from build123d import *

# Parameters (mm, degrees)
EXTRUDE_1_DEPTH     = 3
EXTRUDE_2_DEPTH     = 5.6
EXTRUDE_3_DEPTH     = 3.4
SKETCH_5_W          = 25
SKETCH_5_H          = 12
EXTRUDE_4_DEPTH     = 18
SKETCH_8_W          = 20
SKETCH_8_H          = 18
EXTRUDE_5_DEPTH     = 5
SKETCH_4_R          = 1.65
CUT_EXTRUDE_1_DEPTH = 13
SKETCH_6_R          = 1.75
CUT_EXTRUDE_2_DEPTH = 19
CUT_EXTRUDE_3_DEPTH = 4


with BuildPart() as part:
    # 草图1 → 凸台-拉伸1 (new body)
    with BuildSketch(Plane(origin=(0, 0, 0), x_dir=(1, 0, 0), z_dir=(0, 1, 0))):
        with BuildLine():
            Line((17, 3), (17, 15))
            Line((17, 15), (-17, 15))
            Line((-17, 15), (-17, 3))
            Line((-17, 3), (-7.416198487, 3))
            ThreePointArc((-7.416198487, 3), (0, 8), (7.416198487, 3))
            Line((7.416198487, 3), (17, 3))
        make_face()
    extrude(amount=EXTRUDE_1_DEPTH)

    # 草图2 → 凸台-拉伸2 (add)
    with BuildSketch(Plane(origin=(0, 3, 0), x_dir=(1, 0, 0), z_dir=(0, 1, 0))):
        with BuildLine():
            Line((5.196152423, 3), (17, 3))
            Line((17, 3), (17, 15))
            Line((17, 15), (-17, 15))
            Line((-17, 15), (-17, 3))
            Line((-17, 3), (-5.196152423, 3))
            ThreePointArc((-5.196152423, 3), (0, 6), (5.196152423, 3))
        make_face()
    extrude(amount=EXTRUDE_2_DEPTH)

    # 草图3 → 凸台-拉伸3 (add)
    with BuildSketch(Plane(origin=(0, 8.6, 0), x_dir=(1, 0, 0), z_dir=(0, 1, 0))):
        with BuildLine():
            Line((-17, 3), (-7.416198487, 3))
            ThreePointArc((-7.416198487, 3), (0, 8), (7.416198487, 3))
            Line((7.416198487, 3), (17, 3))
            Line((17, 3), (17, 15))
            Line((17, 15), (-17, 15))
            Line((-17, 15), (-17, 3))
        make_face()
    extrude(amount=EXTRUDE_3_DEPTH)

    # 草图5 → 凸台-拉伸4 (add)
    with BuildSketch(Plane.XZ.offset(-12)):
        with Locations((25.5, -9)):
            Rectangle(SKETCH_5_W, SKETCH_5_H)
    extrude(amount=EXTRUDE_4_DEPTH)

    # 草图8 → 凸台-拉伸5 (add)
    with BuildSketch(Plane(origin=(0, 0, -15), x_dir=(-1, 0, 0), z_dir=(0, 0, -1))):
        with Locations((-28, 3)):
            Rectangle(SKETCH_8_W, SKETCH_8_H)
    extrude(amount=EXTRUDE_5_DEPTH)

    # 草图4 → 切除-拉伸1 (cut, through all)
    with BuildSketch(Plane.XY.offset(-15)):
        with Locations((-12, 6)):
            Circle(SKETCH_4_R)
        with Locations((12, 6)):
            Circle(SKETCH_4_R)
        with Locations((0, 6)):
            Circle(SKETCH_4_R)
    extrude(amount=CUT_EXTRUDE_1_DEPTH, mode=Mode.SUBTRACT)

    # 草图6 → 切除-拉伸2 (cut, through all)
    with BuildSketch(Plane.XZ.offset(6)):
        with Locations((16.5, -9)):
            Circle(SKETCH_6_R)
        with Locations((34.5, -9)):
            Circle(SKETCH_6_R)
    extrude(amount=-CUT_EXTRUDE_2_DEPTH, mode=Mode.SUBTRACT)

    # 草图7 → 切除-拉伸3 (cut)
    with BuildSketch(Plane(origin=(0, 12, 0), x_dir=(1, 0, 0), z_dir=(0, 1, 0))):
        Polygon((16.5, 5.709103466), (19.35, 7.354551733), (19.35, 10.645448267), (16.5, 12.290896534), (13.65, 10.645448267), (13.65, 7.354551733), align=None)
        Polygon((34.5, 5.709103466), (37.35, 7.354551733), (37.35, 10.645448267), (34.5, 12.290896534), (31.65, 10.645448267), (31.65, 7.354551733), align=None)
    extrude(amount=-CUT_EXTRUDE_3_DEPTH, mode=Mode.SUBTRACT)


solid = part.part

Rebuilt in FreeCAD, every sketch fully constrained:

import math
import FreeCAD as App
import Part
import Sketcher
Q = App.Units.Quantity

doc = App.newDocument("Part")
body = doc.addObject("PartDesign::Body", "Body")

# Sketch on XZ plane
sketch1 = body.newObject("Sketcher::SketchObject", "Sketch")
sketch1.AttachmentSupport = (doc.getObject("XZ_Plane"), [""])
sketch1.MapMode = "FlatFace"
sketch1.addGeometry([
    Part.LineSegment(App.Vector(17, -3, 0), App.Vector(17, -15, 0)),  # 0
    Part.LineSegment(App.Vector(17, -15, 0), App.Vector(-17, -15, 0)),  # 1
    Part.LineSegment(App.Vector(-17, -15, 0), App.Vector(-17, -3, 0)),  # 2
    Part.LineSegment(App.Vector(-17, -3, 0), App.Vector(-7, -3, 0)),  # 3
    Part.ArcOfCircle(Part.Circle(App.Vector(0, 0, 0), App.Vector(0, 0, 1), 8), math.radians(-158), math.radians(-22)),  # 4
    Part.LineSegment(App.Vector(7, -3, 0), App.Vector(17, -3, 0)),  # 5
], False)
sketch1.addConstraint([
    Sketcher.Constraint("Coincident", 0, 2, 1, 1),
    Sketcher.Constraint("Coincident", 1, 2, 2, 1),
    Sketcher.Constraint("Coincident", 2, 2, 3, 1),
    Sketcher.Constraint("Coincident", 3, 2, 4, 1),
    Sketcher.Constraint("Coincident", 4, 2, 5, 1),
    Sketcher.Constraint("Coincident", 5, 2, 0, 1),
    Sketcher.Constraint("Vertical", 0),
    Sketcher.Constraint("Horizontal", 1),
    Sketcher.Constraint("Vertical", 2),
    Sketcher.Constraint("Horizontal", 3),
    Sketcher.Constraint("Horizontal", 5),
    Sketcher.Constraint("Coincident", 4, 3, -1, 1),
    Sketcher.Constraint("Symmetric", 2, 2, 5, 2, -2),
    Sketcher.Constraint("Radius", 4, Q("8 mm")),
    Sketcher.Constraint("DistanceX", 1, 2, 1, 1, Q("34 mm")),
    Sketcher.Constraint("DistanceY", 0, 2, 0, 1, Q("12 mm")),
    Sketcher.Constraint("DistanceY", 0, 2, -1, 1, Q("15 mm")),
])
pad1 = body.newObject("PartDesign::Pad", "Pad")
pad1.Profile = sketch1
pad1.Length = 3
pad1.Reversed = True

# Sketch on XZ plane
sketch2 = body.newObject("Sketcher::SketchObject", "Sketch001")
sketch2.AttachmentSupport = (doc.getObject("XZ_Plane"), [""])
sketch2.MapMode = "FlatFace"
sketch2.AttachmentOffset = App.Placement(App.Vector(0, 0, -3), App.Rotation())
sketch2.addGeometry([
    Part.LineSegment(App.Vector(5, -3, 0), App.Vector(17, -3, 0)),  # 0
    Part.LineSegment(App.Vector(17, -3, 0), App.Vector(17, -15, 0)),  # 1
    Part.LineSegment(App.Vector(17, -15, 0), App.Vector(-17, -15, 0)),  # 2
    Part.LineSegment(App.Vector(-17, -15, 0), App.Vector(-17, -3, 0)),  # 3
    Part.LineSegment(App.Vector(-17, -3, 0), App.Vector(-5, -3, 0)),  # 4
    Part.ArcOfCircle(Part.Circle(App.Vector(0, 0, 0), App.Vector(0, 0, 1), 6), math.radians(-150), math.radians(-30)),  # 5
], False)
sketch2.addConstraint([
    Sketcher.Constraint("Coincident", 0, 2, 1, 1),
    Sketcher.Constraint("Coincident", 1, 2, 2, 1),
    Sketcher.Constraint("Coincident", 2, 2, 3, 1),
    Sketcher.Constraint("Coincident", 3, 2, 4, 1),
    Sketcher.Constraint("Coincident", 4, 2, 5, 1),
    Sketcher.Constraint("Coincident", 5, 2, 0, 1),
    Sketcher.Constraint("Horizontal", 0),
    Sketcher.Constraint("Vertical", 1),
    Sketcher.Constraint("Horizontal", 2),
    Sketcher.Constraint("Vertical", 3),
    Sketcher.Constraint("Horizontal", 4),
    Sketcher.Constraint("Coincident", 5, 3, -1, 1),
    Sketcher.Constraint("Symmetric", 0, 2, 3, 2, -2),
    Sketcher.Constraint("Radius", 5, Q("6 mm")),
    Sketcher.Constraint("DistanceX", 2, 2, 2, 1, Q("34 mm")),
    Sketcher.Constraint("DistanceY", 1, 2, 1, 1, Q("12 mm")),
    Sketcher.Constraint("DistanceY", 0, 2, -1, 1, Q("3 mm")),
])
pad2 = body.newObject("PartDesign::Pad", "Pad001")
pad2.Profile = sketch2
pad2.Length = 5.6
pad2.Reversed = True

# Sketch on XZ plane
sketch3 = body.newObject("Sketcher::SketchObject", "Sketch002")
sketch3.AttachmentSupport = (doc.getObject("XZ_Plane"), [""])
sketch3.MapMode = "FlatFace"
sketch3.AttachmentOffset = App.Placement(App.Vector(0, 0, -8.6), App.Rotation())
sketch3.addGeometry([
    Part.LineSegment(App.Vector(-17, -3, 0), App.Vector(-7, -3, 0)),  # 0
    Part.ArcOfCircle(Part.Circle(App.Vector(0, 0, 0), App.Vector(0, 0, 1), 8), math.radians(-158), math.radians(-22)),  # 1
    Part.LineSegment(App.Vector(7, -3, 0), App.Vector(17, -3, 0)),  # 2
    Part.LineSegment(App.Vector(17, -3, 0), App.Vector(17, -15, 0)),  # 3
    Part.LineSegment(App.Vector(17, -15, 0), App.Vector(-17, -15, 0)),  # 4
    Part.LineSegment(App.Vector(-17, -15, 0), App.Vector(-17, -3, 0)),  # 5
], False)
sketch3.addConstraint([
    Sketcher.Constraint("Coincident", 0, 2, 1, 1),
    Sketcher.Constraint("Coincident", 1, 2, 2, 1),
    Sketcher.Constraint("Coincident", 2, 2, 3, 1),
    Sketcher.Constraint("Coincident", 3, 2, 4, 1),
    Sketcher.Constraint("Coincident", 4, 2, 5, 1),
    Sketcher.Constraint("Coincident", 5, 2, 0, 1),
    Sketcher.Constraint("Horizontal", 0),
    Sketcher.Constraint("Horizontal", 2),
    Sketcher.Constraint("Vertical", 3),
    Sketcher.Constraint("Horizontal", 4),
    Sketcher.Constraint("Vertical", 5),
    Sketcher.Constraint("Coincident", 1, 3, -1, 1),
    Sketcher.Constraint("Symmetric", 2, 2, 5, 2, -2),
    Sketcher.Constraint("Radius", 1, Q("8 mm")),
    Sketcher.Constraint("DistanceX", 4, 2, 4, 1, Q("34 mm")),
    Sketcher.Constraint("DistanceY", 3, 2, 3, 1, Q("12 mm")),
    Sketcher.Constraint("DistanceY", 0, 2, -1, 1, Q("3 mm")),
])
pad3 = body.newObject("PartDesign::Pad", "Pad002")
pad3.Profile = sketch3
pad3.Length = 3.4
pad3.Reversed = True

# Sketch on XZ plane
sketch4 = body.newObject("Sketcher::SketchObject", "Sketch003")
sketch4.AttachmentSupport = (doc.getObject("XZ_Plane"), [""])
sketch4.MapMode = "FlatFace"
sketch4.AttachmentOffset = App.Placement(App.Vector(0, 0, -12), App.Rotation())
sketch4.addGeometry([
    Part.LineSegment(App.Vector(13, -3, 0), App.Vector(13, -15, 0)),
    Part.LineSegment(App.Vector(13, -15, 0), App.Vector(38, -15, 0)),
    Part.LineSegment(App.Vector(38, -15, 0), App.Vector(38, -3, 0)),
    Part.LineSegment(App.Vector(38, -3, 0), App.Vector(13, -3, 0)),
], False)
sketch4.addConstraint([
    Sketcher.Constraint("Coincident", 0, 2, 1, 1),
    Sketcher.Constraint("Coincident", 1, 2, 2, 1),
    Sketcher.Constraint("Coincident", 2, 2, 3, 1),
    Sketcher.Constraint("Coincident", 3, 2, 0, 1),
    Sketcher.Constraint("Vertical", 0),
    Sketcher.Constraint("Horizontal", 1),
    Sketcher.Constraint("Vertical", 2),
    Sketcher.Constraint("Horizontal", 3),
    Sketcher.Constraint("DistanceX", 1, 1, 1, 2, Q("25 mm")),
    Sketcher.Constraint("DistanceY", 0, 2, 0, 1, Q("12 mm")),
    Sketcher.Constraint("DistanceX", -1, 1, 0, 2, Q("13 mm")),
    Sketcher.Constraint("DistanceY", 0, 2, -1, 1, Q("15 mm")),
])
pad4 = body.newObject("PartDesign::Pad", "Pad003")
pad4.Profile = sketch4
pad4.Length = 18

# Sketch on XY plane
sketch5 = body.newObject("Sketcher::SketchObject", "Sketch004")
sketch5.AttachmentSupport = (doc.getObject("XY_Plane"), [""])
sketch5.MapMode = "FlatFace"
sketch5.AttachmentOffset = App.Placement(App.Vector(0, 0, -15), App.Rotation())
sketch5.addGeometry([
    Part.LineSegment(App.Vector(38, 12, 0), App.Vector(38, -6, 0)),
    Part.LineSegment(App.Vector(38, -6, 0), App.Vector(18, -6, 0)),
    Part.LineSegment(App.Vector(18, -6, 0), App.Vector(18, 12, 0)),
    Part.LineSegment(App.Vector(18, 12, 0), App.Vector(38, 12, 0)),
], False)
sketch5.addConstraint([
    Sketcher.Constraint("Coincident", 0, 2, 1, 1),
    Sketcher.Constraint("Coincident", 1, 2, 2, 1),
    Sketcher.Constraint("Coincident", 2, 2, 3, 1),
    Sketcher.Constraint("Coincident", 3, 2, 0, 1),
    Sketcher.Constraint("Vertical", 0),
    Sketcher.Constraint("Horizontal", 1),
    Sketcher.Constraint("Vertical", 2),
    Sketcher.Constraint("Horizontal", 3),
    Sketcher.Constraint("DistanceX", 1, 2, 1, 1, Q("20 mm")),
    Sketcher.Constraint("DistanceY", 0, 2, 0, 1, Q("18 mm")),
    Sketcher.Constraint("DistanceX", -1, 1, 0, 2, Q("38 mm")),
    Sketcher.Constraint("DistanceY", 0, 2, -1, 1, Q("6 mm")),
])
pad5 = body.newObject("PartDesign::Pad", "Pad004")
pad5.Profile = sketch5
pad5.Length = 5
pad5.Reversed = True

# Sketch on XY plane
sketch6 = body.newObject("Sketcher::SketchObject", "Sketch005")
sketch6.AttachmentSupport = (doc.getObject("XY_Plane"), [""])
sketch6.MapMode = "FlatFace"
sketch6.AttachmentOffset = App.Placement(App.Vector(0, 0, -15), App.Rotation())
sketch6.addGeometry([
    Part.Circle(App.Vector(-12, 6, 0), App.Vector(0, 0, 1), 1.6),
    Part.Circle(App.Vector(12, 6, 0), App.Vector(0, 0, 1), 1.6),
    Part.Circle(App.Vector(0, 6, 0), App.Vector(0, 0, 1), 1.6),
], False)
sketch6.addConstraint([
    Sketcher.Constraint("Equal", 0, 1),
    Sketcher.Constraint("Equal", 1, 2),
    Sketcher.Constraint("Symmetric", 0, 3, 1, 3, -2),
    Sketcher.Constraint("PointOnObject", 2, 3, -2),
    Sketcher.Constraint("Horizontal", 1, 3, 2, 3),
    Sketcher.Constraint("Diameter", 0, Q("3.3 mm")),
    Sketcher.Constraint("DistanceX", 0, 3, -1, 1, Q("12 mm")),
    Sketcher.Constraint("DistanceY", -1, 1, 0, 3, Q("6 mm")),
])
pocket1 = body.newObject("PartDesign::Pocket", "Pocket")
pocket1.Profile = sketch6
pocket1.Type = "ThroughAll"
pocket1.Reversed = True

# Sketch on XZ plane
sketch7 = body.newObject("Sketcher::SketchObject", "Sketch006")
sketch7.AttachmentSupport = (doc.getObject("XZ_Plane"), [""])
sketch7.MapMode = "FlatFace"
sketch7.AttachmentOffset = App.Placement(App.Vector(0, 0, 6), App.Rotation())
sketch7.addGeometry([
    Part.Circle(App.Vector(16.5, -9, 0), App.Vector(0, 0, 1), 1.8),
    Part.Circle(App.Vector(34.5, -9, 0), App.Vector(0, 0, 1), 1.8),
], False)
sketch7.addConstraint([
    Sketcher.Constraint("Equal", 0, 1),
    Sketcher.Constraint("Horizontal", 0, 3, 1, 3),
    Sketcher.Constraint("Diameter", 0, Q("3.5 mm")),
    Sketcher.Constraint("DistanceY", 0, 3, -1, 1, Q("9 mm")),
    Sketcher.Constraint("DistanceX", 0, 3, 1, 3, Q("18 mm")),
    Sketcher.Constraint("DistanceX", -1, 1, 0, 3, Q("16.5 mm")),
])
pocket2 = body.newObject("PartDesign::Pocket", "Pocket001")
pocket2.Profile = sketch7
pocket2.Type = "ThroughAll"

# Sketch on XZ plane
sketch8 = body.newObject("Sketcher::SketchObject", "Sketch007")
sketch8.AttachmentSupport = (doc.getObject("XZ_Plane"), [""])
sketch8.MapMode = "FlatFace"
sketch8.AttachmentOffset = App.Placement(App.Vector(0, 0, -12), App.Rotation())
sketch8.addGeometry([
    Part.LineSegment(App.Vector(16.5, -5.7, 0), App.Vector(19.4, -7.4, 0)),  # 0
    Part.LineSegment(App.Vector(19.4, -7.4, 0), App.Vector(19.4, -10.6, 0)),  # 1
    Part.LineSegment(App.Vector(19.4, -10.6, 0), App.Vector(16.5, -12.3, 0)),  # 2
    Part.LineSegment(App.Vector(16.5, -12.3, 0), App.Vector(13.7, -10.6, 0)),  # 3
    Part.LineSegment(App.Vector(13.7, -10.6, 0), App.Vector(13.7, -7.4, 0)),  # 4
    Part.LineSegment(App.Vector(13.7, -7.4, 0), App.Vector(16.5, -5.7, 0)),  # 5
    Part.LineSegment(App.Vector(34.5, -5.7, 0), App.Vector(37.4, -7.4, 0)),  # 6
    Part.LineSegment(App.Vector(37.4, -7.4, 0), App.Vector(37.4, -10.6, 0)),  # 7
    Part.LineSegment(App.Vector(37.4, -10.6, 0), App.Vector(34.5, -12.3, 0)),  # 8
    Part.LineSegment(App.Vector(34.5, -12.3, 0), App.Vector(31.6, -10.6, 0)),  # 9
    Part.LineSegment(App.Vector(31.6, -10.6, 0), App.Vector(31.6, -7.4, 0)),  # 10
    Part.LineSegment(App.Vector(31.6, -7.4, 0), App.Vector(34.5, -5.7, 0)),  # 11
], False)
sketch8.addConstraint([
    Sketcher.Constraint("Coincident", 0, 2, 1, 1),
    Sketcher.Constraint("Coincident", 1, 2, 2, 1),
    Sketcher.Constraint("Coincident", 2, 2, 3, 1),
    Sketcher.Constraint("Coincident", 3, 2, 4, 1),
    Sketcher.Constraint("Coincident", 4, 2, 5, 1),
    Sketcher.Constraint("Coincident", 5, 2, 0, 1),
    Sketcher.Constraint("Coincident", 6, 2, 7, 1),
    Sketcher.Constraint("Coincident", 7, 2, 8, 1),
    Sketcher.Constraint("Coincident", 8, 2, 9, 1),
    Sketcher.Constraint("Coincident", 9, 2, 10, 1),
    Sketcher.Constraint("Coincident", 10, 2, 11, 1),
    Sketcher.Constraint("Coincident", 11, 2, 6, 1),
    Sketcher.Constraint("Vertical", 1),
    Sketcher.Constraint("Vertical", 4),
    Sketcher.Constraint("Vertical", 7),
    Sketcher.Constraint("Vertical", 10),
    Sketcher.Constraint("Parallel", 0, 3),
    Sketcher.Constraint("Parallel", 2, 5),
    Sketcher.Constraint("Parallel", 3, 6),
    Sketcher.Constraint("Parallel", 5, 8),
    Sketcher.Constraint("Parallel", 6, 9),
    Sketcher.Constraint("Parallel", 8, 11),
    Sketcher.Constraint("Horizontal", 1, 2, 3, 2),
    Sketcher.Constraint("Horizontal", 0, 2, 4, 2),
    Sketcher.Constraint("Horizontal", 4, 2, 6, 2),
    Sketcher.Constraint("Horizontal", 3, 2, 7, 2),
    Sketcher.Constraint("Horizontal", 2, 2, 8, 2),
    Sketcher.Constraint("Horizontal", 7, 2, 9, 2),
    Sketcher.Constraint("Horizontal", 6, 2, 10, 2),
    Sketcher.Constraint("Vertical", 2, 2, 5, 2),
    Sketcher.Constraint("Angle", 0, Q("-30 deg")),
    Sketcher.Constraint("DistanceX", 0, 2, 6, 2, Q("18 mm")),
    Sketcher.Constraint("DistanceX", -1, 1, 2, 2, Q("16.5 mm")),
    Sketcher.Constraint("DistanceX", 3, 2, 1, 2, Q("5.7 mm")),
    Sketcher.Constraint("DistanceY", 1, 2, 1, 1, Q("3.290897 mm")),
    Sketcher.Constraint("DistanceY", 0, 2, -1, 1, Q("7.354552 mm")),
])
pocket3 = body.newObject("PartDesign::Pocket", "Pocket002")
pocket3.Profile = sketch8
pocket3.Length = 4
pocket3.Reversed = True

doc.recompute()
